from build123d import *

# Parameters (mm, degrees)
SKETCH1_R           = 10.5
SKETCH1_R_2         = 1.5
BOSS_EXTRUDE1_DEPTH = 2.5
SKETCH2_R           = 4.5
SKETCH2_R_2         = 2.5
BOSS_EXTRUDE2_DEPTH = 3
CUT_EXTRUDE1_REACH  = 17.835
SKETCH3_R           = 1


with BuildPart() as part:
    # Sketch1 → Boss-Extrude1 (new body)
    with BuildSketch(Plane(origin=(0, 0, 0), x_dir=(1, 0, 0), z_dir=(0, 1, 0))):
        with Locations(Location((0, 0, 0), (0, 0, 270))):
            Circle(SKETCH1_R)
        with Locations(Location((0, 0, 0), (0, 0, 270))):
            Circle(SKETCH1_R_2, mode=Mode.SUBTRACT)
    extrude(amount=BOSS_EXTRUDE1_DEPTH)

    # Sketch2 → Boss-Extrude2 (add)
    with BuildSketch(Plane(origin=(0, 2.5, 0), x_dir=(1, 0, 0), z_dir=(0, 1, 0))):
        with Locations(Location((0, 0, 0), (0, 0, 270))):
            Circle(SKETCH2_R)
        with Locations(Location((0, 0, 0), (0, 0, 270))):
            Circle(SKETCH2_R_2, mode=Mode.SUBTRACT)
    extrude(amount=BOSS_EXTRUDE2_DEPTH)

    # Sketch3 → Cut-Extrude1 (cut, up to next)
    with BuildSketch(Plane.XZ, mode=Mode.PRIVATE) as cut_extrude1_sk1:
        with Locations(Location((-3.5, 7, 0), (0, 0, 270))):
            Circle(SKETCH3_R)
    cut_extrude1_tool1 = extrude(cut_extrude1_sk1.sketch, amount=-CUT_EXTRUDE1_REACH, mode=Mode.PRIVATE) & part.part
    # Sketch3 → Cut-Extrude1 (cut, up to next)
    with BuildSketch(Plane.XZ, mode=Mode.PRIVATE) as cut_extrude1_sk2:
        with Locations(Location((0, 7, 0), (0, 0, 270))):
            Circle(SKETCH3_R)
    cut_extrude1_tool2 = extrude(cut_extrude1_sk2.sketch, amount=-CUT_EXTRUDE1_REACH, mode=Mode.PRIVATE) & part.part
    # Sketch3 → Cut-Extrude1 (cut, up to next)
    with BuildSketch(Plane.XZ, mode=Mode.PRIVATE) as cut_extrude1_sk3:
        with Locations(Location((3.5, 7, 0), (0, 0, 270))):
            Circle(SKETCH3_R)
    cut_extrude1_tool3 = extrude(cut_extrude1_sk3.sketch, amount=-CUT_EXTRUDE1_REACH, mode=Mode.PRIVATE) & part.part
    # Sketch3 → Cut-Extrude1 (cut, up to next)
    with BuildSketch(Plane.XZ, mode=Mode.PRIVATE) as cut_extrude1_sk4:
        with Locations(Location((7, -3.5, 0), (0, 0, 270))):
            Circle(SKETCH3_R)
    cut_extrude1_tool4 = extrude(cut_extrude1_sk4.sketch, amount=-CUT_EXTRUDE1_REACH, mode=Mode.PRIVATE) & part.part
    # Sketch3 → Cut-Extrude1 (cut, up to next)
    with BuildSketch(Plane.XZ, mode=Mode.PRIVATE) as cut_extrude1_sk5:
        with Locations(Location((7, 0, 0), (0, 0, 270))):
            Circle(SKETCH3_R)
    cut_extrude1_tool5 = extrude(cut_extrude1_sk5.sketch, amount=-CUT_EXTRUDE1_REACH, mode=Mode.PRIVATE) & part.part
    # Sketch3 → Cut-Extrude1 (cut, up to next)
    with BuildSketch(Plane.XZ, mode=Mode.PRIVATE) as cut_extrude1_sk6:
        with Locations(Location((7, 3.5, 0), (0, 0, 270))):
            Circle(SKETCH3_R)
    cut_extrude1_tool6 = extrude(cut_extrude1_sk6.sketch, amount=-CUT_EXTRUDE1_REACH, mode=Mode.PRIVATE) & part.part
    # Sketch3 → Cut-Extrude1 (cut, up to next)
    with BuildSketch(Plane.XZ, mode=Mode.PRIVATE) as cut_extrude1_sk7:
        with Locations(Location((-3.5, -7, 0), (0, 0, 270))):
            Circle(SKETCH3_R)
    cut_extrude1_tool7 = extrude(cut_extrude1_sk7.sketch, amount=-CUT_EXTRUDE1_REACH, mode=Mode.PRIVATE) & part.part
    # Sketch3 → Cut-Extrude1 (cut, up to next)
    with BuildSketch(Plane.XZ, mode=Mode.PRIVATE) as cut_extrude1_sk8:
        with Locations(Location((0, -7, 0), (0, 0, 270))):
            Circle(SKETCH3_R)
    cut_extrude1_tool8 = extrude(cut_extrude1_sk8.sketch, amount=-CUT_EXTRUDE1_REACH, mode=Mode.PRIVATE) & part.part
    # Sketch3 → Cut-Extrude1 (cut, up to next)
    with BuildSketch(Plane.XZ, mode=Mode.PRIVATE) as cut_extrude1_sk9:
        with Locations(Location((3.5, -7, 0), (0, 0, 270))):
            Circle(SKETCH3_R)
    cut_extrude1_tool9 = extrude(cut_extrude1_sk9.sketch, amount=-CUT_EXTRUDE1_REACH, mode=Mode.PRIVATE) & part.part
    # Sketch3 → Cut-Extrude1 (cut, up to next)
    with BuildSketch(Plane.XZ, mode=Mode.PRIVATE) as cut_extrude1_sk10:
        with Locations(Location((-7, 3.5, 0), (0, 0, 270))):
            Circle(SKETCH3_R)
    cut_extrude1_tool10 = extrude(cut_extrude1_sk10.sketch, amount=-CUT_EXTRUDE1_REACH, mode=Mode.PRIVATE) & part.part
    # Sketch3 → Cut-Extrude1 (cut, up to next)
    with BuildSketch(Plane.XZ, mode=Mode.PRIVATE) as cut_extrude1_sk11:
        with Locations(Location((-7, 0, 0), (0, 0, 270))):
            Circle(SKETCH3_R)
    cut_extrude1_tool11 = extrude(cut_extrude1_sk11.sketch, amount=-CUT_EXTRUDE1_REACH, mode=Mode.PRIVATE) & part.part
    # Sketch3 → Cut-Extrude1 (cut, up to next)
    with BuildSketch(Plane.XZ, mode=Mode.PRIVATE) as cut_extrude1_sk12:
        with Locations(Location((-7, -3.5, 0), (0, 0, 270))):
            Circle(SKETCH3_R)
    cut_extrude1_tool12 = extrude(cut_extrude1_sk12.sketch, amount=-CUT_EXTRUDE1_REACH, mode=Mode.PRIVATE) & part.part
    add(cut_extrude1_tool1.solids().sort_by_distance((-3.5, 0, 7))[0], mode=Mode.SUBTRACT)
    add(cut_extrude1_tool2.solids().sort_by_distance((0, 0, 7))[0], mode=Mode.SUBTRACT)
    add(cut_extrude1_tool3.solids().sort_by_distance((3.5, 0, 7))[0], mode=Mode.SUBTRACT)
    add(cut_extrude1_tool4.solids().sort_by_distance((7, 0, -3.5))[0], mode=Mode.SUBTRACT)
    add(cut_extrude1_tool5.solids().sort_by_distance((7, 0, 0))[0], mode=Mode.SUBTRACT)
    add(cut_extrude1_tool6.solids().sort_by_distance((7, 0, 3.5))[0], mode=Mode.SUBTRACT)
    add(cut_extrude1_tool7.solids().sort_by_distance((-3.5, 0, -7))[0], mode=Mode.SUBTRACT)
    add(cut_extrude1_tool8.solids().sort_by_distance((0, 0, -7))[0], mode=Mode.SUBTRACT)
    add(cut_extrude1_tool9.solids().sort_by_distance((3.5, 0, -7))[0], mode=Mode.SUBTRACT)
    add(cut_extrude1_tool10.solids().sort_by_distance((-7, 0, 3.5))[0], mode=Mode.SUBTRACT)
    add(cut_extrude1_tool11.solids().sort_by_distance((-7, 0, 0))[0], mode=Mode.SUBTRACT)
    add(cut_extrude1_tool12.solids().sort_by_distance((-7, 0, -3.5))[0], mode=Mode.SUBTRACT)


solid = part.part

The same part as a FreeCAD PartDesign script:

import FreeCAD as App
import Part
import Sketcher
from FreeCAD import Vector
Q = App.Units.Quantity

doc = App.newDocument("Part")
body = doc.addObject("PartDesign::Body", "Body")

sketch1 = body.newObject("Sketcher::SketchObject", "Sketch")
sketch1.AttachmentSupport = (doc.getObject("XZ_Plane"), [""])
sketch1.MapMode = "FlatFace"
sketch1.addGeometry(Part.Circle(Vector(0, 0, 0), Vector(0, 0, 1), 10.5), False)
sketch1.addGeometry(Part.Circle(Vector(0, 0, 0), Vector(0, 0, 1), 1.5), False)
sketch1.addConstraint(Sketcher.Constraint("Coincident", 0, 3, -1, 1))
sketch1.addConstraint(Sketcher.Constraint("Coincident", 1, 3, -1, 1))
sketch1.addConstraint(Sketcher.Constraint("Diameter", 0, Q("21 mm")))
sketch1.addConstraint(Sketcher.Constraint("Diameter", 1, Q("3 mm")))
pad1 = body.newObject("PartDesign::Pad", "Pad")
pad1.Profile = sketch1
pad1.Length = 2.5
pad1.Reversed = True

sketch2 = body.newObject("Sketcher::SketchObject", "Sketch001")
sketch2.AttachmentSupport = (doc.getObject("XZ_Plane"), [""])
sketch2.MapMode = "FlatFace"
sketch2.AttachmentOffset = App.Placement(Vector(0, 0, -2.5), App.Rotation())
sketch2.addGeometry(Part.Circle(Vector(0, 0, 0), Vector(0, 0, 1), 4.5), False)
sketch2.addGeometry(Part.Circle(Vector(0, 0, 0), Vector(0, 0, 1), 2.5), False)
sketch2.addConstraint(Sketcher.Constraint("Coincident", 0, 3, -1, 1))
sketch2.addConstraint(Sketcher.Constraint("Coincident", 1, 3, -1, 1))
sketch2.addConstraint(Sketcher.Constraint("Diameter", 0, Q("9 mm")))
sketch2.addConstraint(Sketcher.Constraint("Diameter", 1, Q("5 mm")))
pad2 = body.newObject("PartDesign::Pad", "Pad001")
pad2.Profile = sketch2
pad2.Length = 3
pad2.Reversed = True

sketch3 = body.newObject("Sketcher::SketchObject", "Sketch002")
sketch3.AttachmentSupport = (doc.getObject("XZ_Plane"), [""])
sketch3.MapMode = "FlatFace"
sketch3.addGeometry(Part.Circle(Vector(-3.5, 7, 0), Vector(0, 0, 1), 1), False)
sketch3.addConstraint(Sketcher.Constraint("Diameter", 0, Q("2 mm")))
sketch3.addConstraint(Sketcher.Constraint("DistanceY", -1, 1, 0, 3, Q("7 mm")))
sketch3.addConstraint(Sketcher.Constraint("DistanceX", 0, 3, -1, 1, Q("3.5 mm")))
pocket1 = body.newObject("PartDesign::Pocket", "Pocket")
pocket1.Profile = sketch3
pocket1.Type = "UpToFirst"

sketch4 = body.newObject("Sketcher::SketchObject", "Sketch003")
sketch4.AttachmentSupport = (doc.getObject("XZ_Plane"), [""])
sketch4.MapMode = "FlatFace"
sketch4.addGeometry(Part.Circle(Vector(0, 7, 0), Vector(0, 0, 1), 1), False)
sketch4.addConstraint(Sketcher.Constraint("PointOnObject", 0, 3, -2))
sketch4.addConstraint(Sketcher.Constraint("Diameter", 0, Q("2 mm")))
sketch4.addConstraint(Sketcher.Constraint("DistanceY", -1, 1, 0, 3, Q("7 mm")))
pocket2 = body.newObject("PartDesign::Pocket", "Pocket001")
pocket2.Profile = sketch4
pocket2.Type = "UpToFirst"

sketch5 = body.newObject("Sketcher::SketchObject", "Sketch004")
sketch5.AttachmentSupport = (doc.getObject("XZ_Plane"), [""])
sketch5.MapMode = "FlatFace"
sketch5.addGeometry(Part.Circle(Vector(3.5, 7, 0), Vector(0, 0, 1), 1), False)
sketch5.addConstraint(Sketcher.Constraint("Diameter", 0, Q("2 mm")))
sketch5.addConstraint(Sketcher.Constraint("DistanceY", -1, 1, 0, 3, Q("7 mm")))
sketch5.addConstraint(Sketcher.Constraint("DistanceX", -1, 1, 0, 3, Q("3.5 mm")))
pocket3 = body.newObject("PartDesign::Pocket", "Pocket002")
pocket3.Profile = sketch5
pocket3.Type = "UpToFirst"

sketch6 = body.newObject("Sketcher::SketchObject", "Sketch005")
sketch6.AttachmentSupport = (doc.getObject("XZ_Plane"), [""])
sketch6.MapMode = "FlatFace"
sketch6.addGeometry(Part.Circle(Vector(7, -3.5, 0), Vector(0, 0, 1), 1), False)
sketch6.addConstraint(Sketcher.Constraint("Diameter", 0, Q("2 mm")))
sketch6.addConstraint(Sketcher.Constraint("DistanceX", -1, 1, 0, 3, Q("7 mm")))
sketch6.addConstraint(Sketcher.Constraint("DistanceY", 0, 3, -1, 1, Q("3.5 mm")))
pocket4 = body.newObject("PartDesign::Pocket", "Pocket003")
pocket4.Profile = sketch6
pocket4.Type = "UpToFirst"

sketch7 = body.newObject("Sketcher::SketchObject", "Sketch006")
sketch7.AttachmentSupport = (doc.getObject("XZ_Plane"), [""])
sketch7.MapMode = "FlatFace"
sketch7.addGeometry(Part.Circle(Vector(7, 0, 0), Vector(0, 0, 1), 1), False)
sketch7.addConstraint(Sketcher.Constraint("PointOnObject", 0, 3, -1))
sketch7.addConstraint(Sketcher.Constraint("Diameter", 0, Q("2 mm")))
sketch7.addConstraint(Sketcher.Constraint("DistanceX", -1, 1, 0, 3, Q("7 mm")))
pocket5 = body.newObject("PartDesign::Pocket", "Pocket004")
pocket5.Profile = sketch7
pocket5.Type = "UpToFirst"

sketch8 = body.newObject("Sketcher::SketchObject", "Sketch007")
sketch8.AttachmentSupport = (doc.getObject("XZ_Plane"), [""])
sketch8.MapMode = "FlatFace"
sketch8.addGeometry(Part.Circle(Vector(7, 3.5, 0), Vector(0, 0, 1), 1), False)
sketch8.addConstraint(Sketcher.Constraint("Diameter", 0, Q("2 mm")))
sketch8.addConstraint(Sketcher.Constraint("DistanceX", -1, 1, 0, 3, Q("7 mm")))
sketch8.addConstraint(Sketcher.Constraint("DistanceY", -1, 1, 0, 3, Q("3.5 mm")))
pocket6 = body.newObject("PartDesign::Pocket", "Pocket005")
pocket6.Profile = sketch8
pocket6.Type = "UpToFirst"

sketch9 = body.newObject("Sketcher::SketchObject", "Sketch008")
sketch9.AttachmentSupport = (doc.getObject("XZ_Plane"), [""])
sketch9.MapMode = "FlatFace"
sketch9.addGeometry(Part.Circle(Vector(-3.5, -7, 0), Vector(0, 0, 1), 1), False)
sketch9.addConstraint(Sketcher.Constraint("Diameter", 0, Q("2 mm")))
sketch9.addConstraint(Sketcher.Constraint("DistanceY", 0, 3, -1, 1, Q("7 mm")))
sketch9.addConstraint(Sketcher.Constraint("DistanceX", 0, 3, -1, 1, Q("3.5 mm")))
pocket7 = body.newObject("PartDesign::Pocket", "Pocket006")
pocket7.Profile = sketch9
pocket7.Type = "UpToFirst"

sketch10 = body.newObject("Sketcher::SketchObject", "Sketch009")
sketch10.AttachmentSupport = (doc.getObject("XZ_Plane"), [""])
sketch10.MapMode = "FlatFace"
sketch10.addGeometry(Part.Circle(Vector(0, -7, 0), Vector(0, 0, 1), 1), False)
sketch10.addConstraint(Sketcher.Constraint("PointOnObject", 0, 3, -2))
sketch10.addConstraint(Sketcher.Constraint("Diameter", 0, Q("2 mm")))
sketch10.addConstraint(Sketcher.Constraint("DistanceY", 0, 3, -1, 1, Q("7 mm")))
pocket8 = body.newObject("PartDesign::Pocket", "Pocket007")
pocket8.Profile = sketch10
pocket8.Type = "UpToFirst"

sketch11 = body.newObject("Sketcher::SketchObject", "Sketch010")
sketch11.AttachmentSupport = (doc.getObject("XZ_Plane"), [""])
sketch11.MapMode = "FlatFace"
sketch11.addGeometry(Part.Circle(Vector(3.5, -7, 0), Vector(0, 0, 1), 1), False)
sketch11.addConstraint(Sketcher.Constraint("Diameter", 0, Q("2 mm")))
sketch11.addConstraint(Sketcher.Constraint("DistanceY", 0, 3, -1, 1, Q("7 mm")))
sketch11.addConstraint(Sketcher.Constraint("DistanceX", -1, 1, 0, 3, Q("3.5 mm")))
pocket9 = body.newObject("PartDesign::Pocket", "Pocket008")
pocket9.Profile = sketch11
pocket9.Type = "UpToFirst"

sketch12 = body.newObject("Sketcher::SketchObject", "Sketch011")
sketch12.AttachmentSupport = (doc.getObject("XZ_Plane"), [""])
sketch12.MapMode = "FlatFace"
sketch12.addGeometry(Part.Circle(Vector(-7, 3.5, 0), Vector(0, 0, 1), 1), False)
sketch12.addConstraint(Sketcher.Constraint("Diameter", 0, Q("2 mm")))
sketch12.addConstraint(Sketcher.Constraint("DistanceX", 0, 3, -1, 1, Q("7 mm")))
sketch12.addConstraint(Sketcher.Constraint("DistanceY", -1, 1, 0, 3, Q("3.5 mm")))
pocket10 = body.newObject("PartDesign::Pocket", "Pocket009")
pocket10.Profile = sketch12
pocket10.Type = "UpToFirst"

sketch13 = body.newObject("Sketcher::SketchObject", "Sketch012")
sketch13.AttachmentSupport = (doc.getObject("XZ_Plane"), [""])
sketch13.MapMode = "FlatFace"
sketch13.addGeometry(Part.Circle(Vector(-7, 0, 0), Vector(0, 0, 1), 1), False)
sketch13.addConstraint(Sketcher.Constraint("PointOnObject", 0, 3, -1))
sketch13.addConstraint(Sketcher.Constraint("Diameter", 0, Q("2 mm")))
sketch13.addConstraint(Sketcher.Constraint("DistanceX", 0, 3, -1, 1, Q("7 mm")))
pocket11 = body.newObject("PartDesign::Pocket", "Pocket010")
pocket11.Profile = sketch13
pocket11.Type = "UpToFirst"

sketch14 = body.newObject("Sketcher::SketchObject", "Sketch013")
sketch14.AttachmentSupport = (doc.getObject("XZ_Plane"), [""])
sketch14.MapMode = "FlatFace"
sketch14.addGeometry(Part.Circle(Vector(-7, -3.5, 0), Vector(0, 0, 1), 1), False)
sketch14.addConstraint(Sketcher.Constraint("Diameter", 0, Q("2 mm")))
sketch14.addConstraint(Sketcher.Constraint("DistanceX", 0, 3, -1, 1, Q("7 mm")))
sketch14.addConstraint(Sketcher.Constraint("DistanceY", 0, 3, -1, 1, Q("3.5 mm")))
pocket12 = body.newObject("PartDesign::Pocket", "Pocket011")
pocket12.Profile = sketch14
pocket12.Type = "UpToFirst"

doc.recompute()
